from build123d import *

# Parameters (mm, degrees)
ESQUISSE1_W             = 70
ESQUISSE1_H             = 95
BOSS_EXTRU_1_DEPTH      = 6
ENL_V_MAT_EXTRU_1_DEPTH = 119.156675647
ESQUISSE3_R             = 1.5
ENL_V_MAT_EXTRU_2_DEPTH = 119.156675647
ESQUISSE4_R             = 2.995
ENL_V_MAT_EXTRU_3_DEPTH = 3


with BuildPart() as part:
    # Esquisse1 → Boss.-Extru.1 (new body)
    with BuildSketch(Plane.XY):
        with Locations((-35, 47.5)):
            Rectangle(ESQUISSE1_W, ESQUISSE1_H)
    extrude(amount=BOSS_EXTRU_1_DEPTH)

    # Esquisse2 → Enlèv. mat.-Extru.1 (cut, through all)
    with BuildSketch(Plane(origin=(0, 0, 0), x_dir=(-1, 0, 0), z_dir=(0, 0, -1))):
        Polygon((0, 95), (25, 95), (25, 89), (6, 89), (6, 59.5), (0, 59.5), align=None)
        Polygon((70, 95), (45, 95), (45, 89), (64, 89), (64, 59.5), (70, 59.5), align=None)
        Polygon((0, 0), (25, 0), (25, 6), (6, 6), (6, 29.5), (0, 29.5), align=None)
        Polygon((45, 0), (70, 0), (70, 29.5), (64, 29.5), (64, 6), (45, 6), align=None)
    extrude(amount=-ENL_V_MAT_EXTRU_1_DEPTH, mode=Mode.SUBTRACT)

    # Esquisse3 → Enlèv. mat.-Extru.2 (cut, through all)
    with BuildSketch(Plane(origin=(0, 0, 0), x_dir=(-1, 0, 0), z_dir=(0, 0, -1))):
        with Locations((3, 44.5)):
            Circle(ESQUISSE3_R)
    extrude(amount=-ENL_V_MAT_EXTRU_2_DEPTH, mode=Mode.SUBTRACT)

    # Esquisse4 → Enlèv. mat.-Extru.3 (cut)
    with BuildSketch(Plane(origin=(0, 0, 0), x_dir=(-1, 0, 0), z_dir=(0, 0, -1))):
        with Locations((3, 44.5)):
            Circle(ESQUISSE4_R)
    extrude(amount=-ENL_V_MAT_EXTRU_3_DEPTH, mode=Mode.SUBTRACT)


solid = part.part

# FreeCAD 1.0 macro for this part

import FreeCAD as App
import Part
import Sketcher

V = App.Vector

doc = App.newDocument("Part")
body = doc.addObject("PartDesign::Body", "Body")

# Sketch on XY plane
sketch1 = body.newObject("Sketcher::SketchObject", "Sketch")
sketch1.AttachmentSupport = (doc.getObject("XY_Plane"), [""])
sketch1.MapMode = "FlatFace"
sketch1.addGeometry([
    Part.LineSegment(V(-70, 95, 0), V(-70, 0, 0)),
    Part.LineSegment(V(-70, 0, 0), V(0, 0, 0)),
    Part.LineSegment(V(0, 0, 0), V(0, 95, 0)),
    Part.LineSegment(V(0, 95, 0), V(-70, 95, 0)),
], False)
sketch1.addConstraint([
    Sketcher.Constraint("Coincident", 0, 2, 1, 1),
    Sketcher.Constraint("Coincident", 1, 2, 2, 1),
    Sketcher.Constraint("Coincident", 2, 2, 3, 1),
    Sketcher.Constraint("Coincident", 3, 2, 0, 1),
    Sketcher.Constraint("Vertical", 0),
    Sketcher.Constraint("Horizontal", 1),
    Sketcher.Constraint("Vertical", 2),
    Sketcher.Constraint("Horizontal", 3),
    Sketcher.Constraint("Coincident", 1, 2, -1, 1),
    Sketcher.Constraint("DistanceX", 1, 1, 1, 2, 70.0),
    Sketcher.Constraint("DistanceY", 0, 2, 0, 1, 95.0),
])
pad1 = body.newObject("PartDesign::Pad", "Pad")
pad1.Profile = sketch1
pad1.Length = 6

# Sketch on XY plane
sketch2 = body.newObject("Sketcher::SketchObject", "Sketch001")
sketch2.AttachmentSupport = (doc.getObject("XY_Plane"), [""])
sketch2.MapMode = "FlatFace"
sketch2.addGeometry([
    Part.LineSegment(V(-25, 95, 0), V(0, 95, 0)),  # 0
    Part.LineSegment(V(0, 95, 0), V(0, 60, 0)),  # 1
    Part.LineSegment(V(0, 60, 0), V(-6, 60, 0)),  # 2
    Part.LineSegment(V(-6, 60, 0), V(-6, 89, 0)),  # 3
    Part.LineSegment(V(-6, 89, 0), V(-25, 89, 0)),  # 4
    Part.LineSegment(V(-25, 89, 0), V(-25, 95, 0)),  # 5
    Part.LineSegment(V(-70, 95, 0), V(-45, 95, 0)),  # 6
    Part.LineSegment(V(-45, 95, 0), V(-45, 89, 0)),  # 7
    Part.LineSegment(V(-45, 89, 0), V(-64, 89, 0)),  # 8
    Part.LineSegment(V(-64, 89, 0), V(-64, 60, 0)),  # 9
    Part.LineSegment(V(-64, 60, 0), V(-70, 60, 0)),  # 10
    Part.LineSegment(V(-70, 60, 0), V(-70, 95, 0)),  # 11
    Part.LineSegment(V(0, 0, 0), V(-25, 0, 0)),  # 12
    Part.LineSegment(V(-25, 0, 0), V(-25, 6, 0)),  # 13
    Part.LineSegment(V(-25, 6, 0), V(-6, 6, 0)),  # 14
    Part.LineSegment(V(-6, 6, 0), V(-6, 30, 0)),  # 15
    Part.LineSegment(V(-6, 30, 0), V(0, 30, 0)),  # 16
    Part.LineSegment(V(0, 30, 0), V(0, 0, 0)),  # 17
    Part.LineSegment(V(-45, 0, 0), V(-70, 0, 0)),  # 18
    Part.LineSegment(V(-70, 0, 0), V(-70, 30, 0)),  # 19
    Part.LineSegment(V(-70, 30, 0), V(-64, 30, 0)),  # 20
    Part.LineSegment(V(-64, 30, 0), V(-64, 6, 0)),  # 21
    Part.LineSegment(V(-64, 6, 0), V(-45, 6, 0)),  # 22
    Part.LineSegment(V(-45, 6, 0), V(-45, 0, 0)),  # 23
], False)
sketch2.addConstraint([
    Sketcher.Constraint("Coincident", 0, 2, 1, 1),
    Sketcher.Constraint("Coincident", 1, 2, 2, 1),
    Sketcher.Constraint("Coincident", 2, 2, 3, 1),
    Sketcher.Constraint("Coincident", 3, 2, 4, 1),
    Sketcher.Constraint("Coincident", 4, 2, 5, 1),
    Sketcher.Constraint("Coincident", 5, 2, 0, 1),
    Sketcher.Constraint("Coincident", 6, 2, 7, 1),
    Sketcher.Constraint("Coincident", 7, 2, 8, 1),
    Sketcher.Constraint("Coincident", 8, 2, 9, 1),
    Sketcher.Constraint("Coincident", 9, 2, 10, 1),
    Sketcher.Constraint("Coincident", 10, 2, 11, 1),
    Sketcher.Constraint("Coincident", 11, 2, 6, 1),
    Sketcher.Constraint("Coincident", 12, 2, 13, 1),
    Sketcher.Constraint("Coincident", 13, 2, 14, 1),
    Sketcher.Constraint("Coincident", 14, 2, 15, 1),
    Sketcher.Constraint("Coincident", 15, 2, 16, 1),
    Sketcher.Constraint("Coincident", 16, 2, 17, 1),
    Sketcher.Constraint("Coincident", 17, 2, 12, 1),
    Sketcher.Constraint("Coincident", 18, 2, 19, 1),
    Sketcher.Constraint("Coincident", 19, 2, 20, 1),
    Sketcher.Constraint("Coincident", 20, 2, 21, 1),
    Sketcher.Constraint("Coincident", 21, 2, 22, 1),
    Sketcher.Constraint("Coincident", 22, 2, 23, 1),
    Sketcher.Constraint("Coincident", 23, 2, 18, 1),
    Sketcher.Constraint("Horizontal", 0),
    Sketcher.Constraint("Vertical", 1),
    Sketcher.Constraint("Horizontal", 2),
    Sketcher.Constraint("Vertical", 3),
    Sketcher.Constraint("Horizontal", 4),
    Sketcher.Constraint("Vertical", 5),
    Sketcher.Constraint("Horizontal", 6),
    Sketcher.Constraint("Vertical", 7),
    Sketcher.Constraint("Horizontal", 8),
    Sketcher.Constraint("Vertical", 9),
    Sketcher.Constraint("Horizontal", 10),
    Sketcher.Constraint("Vertical", 11),
    Sketcher.Constraint("Horizontal", 12),
    Sketcher.Constraint("Vertical", 13),
    Sketcher.Constraint("Horizontal", 14),
    Sketcher.Constraint("Vertical", 15),
    Sketcher.Constraint("Horizontal", 16),
    Sketcher.Constraint("Vertical", 17),
    Sketcher.Constraint("Horizontal", 18),
    Sketcher.Constraint("Vertical", 19),
    Sketcher.Constraint("Horizontal", 20),
    Sketcher.Constraint("Vertical", 21),
    Sketcher.Constraint("Horizontal", 22),
    Sketcher.Constraint("Vertical", 23),
    Sketcher.Constraint("Coincident", 17, 2, -1, 1),
    Sketcher.Constraint("PointOnObject", 0, 2, -2),
    Sketcher.Constraint("PointOnObject", 18, 2, -1),
    Sketcher.Constraint("Horizontal", 5, 2, 6, 2),
    Sketcher.Constraint("Horizontal", 4, 2, 7, 2),
    Sketcher.Constraint("Horizontal", 2, 2, 9, 2),
    Sketcher.Constraint("Horizontal", 16, 2, 19, 2),
    Sketcher.Constraint("Horizontal", 14, 2, 21, 2),
    Sketcher.Constraint("Vertical", 5, 2, 12, 2),
    Sketcher.Constraint("Vertical", 3, 2, 14, 2),
    Sketcher.Constraint("Vertical", 11, 2, 18, 2),
    Sketcher.Constraint("Vertical", 9, 2, 20, 2),
    Sketcher.Constraint("Vertical", 7, 2, 22, 2),
    Sketcher.Constraint("Equal", 0, 6),
    Sketcher.Constraint("Equal", 4, 8),
    Sketcher.Constraint("Equal", 20, 5),
    Sketcher.Constraint("Equal", 7, 13),
    Sketcher.Constraint("Equal", 9, 17),
    Sketcher.Constraint("DistanceX", 0, 1, 0, 2, 25.0),
    Sketcher.Constraint("DistanceX", 2, 2, 2, 1, 6.0),
    Sketcher.Constraint("DistanceY", 1, 2, 1, 1, 35.5),
    Sketcher.Constraint("DistanceY", -1, 1, 0, 2, 95.0),
    Sketcher.Constraint("DistanceX", 6, 2, -1, 1, 45.0),
])
pocket1 = body.newObject("PartDesign::Pocket", "Pocket")
pocket1.Profile = sketch2
pocket1.Type = "ThroughAll"
pocket1.Reversed = True

# Sketch on XY plane
sketch3 = body.newObject("Sketcher::SketchObject", "Sketch002")
sketch3.AttachmentSupport = (doc.getObject("XY_Plane"), [""])
sketch3.MapMode = "FlatFace"
sketch3.addGeometry(Part.Circle(V(-3, 44.5, 0), V(0, 0, 1), 1.5), False)
sketch3.addConstraint([
    Sketcher.Constraint("Diameter", 0, 3.0),
    Sketcher.Constraint("DistanceX", 0, 3, -1, 1, 3.0),
    Sketcher.Constraint("DistanceY", -1, 1, 0, 3, 44.5),
])
pocket2 = body.newObject("PartDesign::Pocket", "Pocket001")
pocket2.Profile = sketch3
pocket2.Type = "ThroughAll"
pocket2.Reversed = True

# Sketch on XY plane
sketch4 = body.newObject("Sketcher::SketchObject", "Sketch003")
sketch4.AttachmentSupport = (doc.getObject("XY_Plane"), [""])
sketch4.MapMode = "FlatFace"
sketch4.addGeometry(Part.Circle(V(-3, 44.5, 0), V(0, 0, 1), 3), False)
sketch4.addConstraint([
    Sketcher.Constraint("Diameter", 0, 5.99),
    Sketcher.Constraint("DistanceX", 0, 3, -1, 1, 3.0),
    Sketcher.Constraint("DistanceY", -1, 1, 0, 3, 44.5),
])
pocket3 = body.newObject("PartDesign::Pocket", "Pocket002")
pocket3.Profile = sketch4
pocket3.Length = 3
pocket3.Reversed = True

doc.recompute()
